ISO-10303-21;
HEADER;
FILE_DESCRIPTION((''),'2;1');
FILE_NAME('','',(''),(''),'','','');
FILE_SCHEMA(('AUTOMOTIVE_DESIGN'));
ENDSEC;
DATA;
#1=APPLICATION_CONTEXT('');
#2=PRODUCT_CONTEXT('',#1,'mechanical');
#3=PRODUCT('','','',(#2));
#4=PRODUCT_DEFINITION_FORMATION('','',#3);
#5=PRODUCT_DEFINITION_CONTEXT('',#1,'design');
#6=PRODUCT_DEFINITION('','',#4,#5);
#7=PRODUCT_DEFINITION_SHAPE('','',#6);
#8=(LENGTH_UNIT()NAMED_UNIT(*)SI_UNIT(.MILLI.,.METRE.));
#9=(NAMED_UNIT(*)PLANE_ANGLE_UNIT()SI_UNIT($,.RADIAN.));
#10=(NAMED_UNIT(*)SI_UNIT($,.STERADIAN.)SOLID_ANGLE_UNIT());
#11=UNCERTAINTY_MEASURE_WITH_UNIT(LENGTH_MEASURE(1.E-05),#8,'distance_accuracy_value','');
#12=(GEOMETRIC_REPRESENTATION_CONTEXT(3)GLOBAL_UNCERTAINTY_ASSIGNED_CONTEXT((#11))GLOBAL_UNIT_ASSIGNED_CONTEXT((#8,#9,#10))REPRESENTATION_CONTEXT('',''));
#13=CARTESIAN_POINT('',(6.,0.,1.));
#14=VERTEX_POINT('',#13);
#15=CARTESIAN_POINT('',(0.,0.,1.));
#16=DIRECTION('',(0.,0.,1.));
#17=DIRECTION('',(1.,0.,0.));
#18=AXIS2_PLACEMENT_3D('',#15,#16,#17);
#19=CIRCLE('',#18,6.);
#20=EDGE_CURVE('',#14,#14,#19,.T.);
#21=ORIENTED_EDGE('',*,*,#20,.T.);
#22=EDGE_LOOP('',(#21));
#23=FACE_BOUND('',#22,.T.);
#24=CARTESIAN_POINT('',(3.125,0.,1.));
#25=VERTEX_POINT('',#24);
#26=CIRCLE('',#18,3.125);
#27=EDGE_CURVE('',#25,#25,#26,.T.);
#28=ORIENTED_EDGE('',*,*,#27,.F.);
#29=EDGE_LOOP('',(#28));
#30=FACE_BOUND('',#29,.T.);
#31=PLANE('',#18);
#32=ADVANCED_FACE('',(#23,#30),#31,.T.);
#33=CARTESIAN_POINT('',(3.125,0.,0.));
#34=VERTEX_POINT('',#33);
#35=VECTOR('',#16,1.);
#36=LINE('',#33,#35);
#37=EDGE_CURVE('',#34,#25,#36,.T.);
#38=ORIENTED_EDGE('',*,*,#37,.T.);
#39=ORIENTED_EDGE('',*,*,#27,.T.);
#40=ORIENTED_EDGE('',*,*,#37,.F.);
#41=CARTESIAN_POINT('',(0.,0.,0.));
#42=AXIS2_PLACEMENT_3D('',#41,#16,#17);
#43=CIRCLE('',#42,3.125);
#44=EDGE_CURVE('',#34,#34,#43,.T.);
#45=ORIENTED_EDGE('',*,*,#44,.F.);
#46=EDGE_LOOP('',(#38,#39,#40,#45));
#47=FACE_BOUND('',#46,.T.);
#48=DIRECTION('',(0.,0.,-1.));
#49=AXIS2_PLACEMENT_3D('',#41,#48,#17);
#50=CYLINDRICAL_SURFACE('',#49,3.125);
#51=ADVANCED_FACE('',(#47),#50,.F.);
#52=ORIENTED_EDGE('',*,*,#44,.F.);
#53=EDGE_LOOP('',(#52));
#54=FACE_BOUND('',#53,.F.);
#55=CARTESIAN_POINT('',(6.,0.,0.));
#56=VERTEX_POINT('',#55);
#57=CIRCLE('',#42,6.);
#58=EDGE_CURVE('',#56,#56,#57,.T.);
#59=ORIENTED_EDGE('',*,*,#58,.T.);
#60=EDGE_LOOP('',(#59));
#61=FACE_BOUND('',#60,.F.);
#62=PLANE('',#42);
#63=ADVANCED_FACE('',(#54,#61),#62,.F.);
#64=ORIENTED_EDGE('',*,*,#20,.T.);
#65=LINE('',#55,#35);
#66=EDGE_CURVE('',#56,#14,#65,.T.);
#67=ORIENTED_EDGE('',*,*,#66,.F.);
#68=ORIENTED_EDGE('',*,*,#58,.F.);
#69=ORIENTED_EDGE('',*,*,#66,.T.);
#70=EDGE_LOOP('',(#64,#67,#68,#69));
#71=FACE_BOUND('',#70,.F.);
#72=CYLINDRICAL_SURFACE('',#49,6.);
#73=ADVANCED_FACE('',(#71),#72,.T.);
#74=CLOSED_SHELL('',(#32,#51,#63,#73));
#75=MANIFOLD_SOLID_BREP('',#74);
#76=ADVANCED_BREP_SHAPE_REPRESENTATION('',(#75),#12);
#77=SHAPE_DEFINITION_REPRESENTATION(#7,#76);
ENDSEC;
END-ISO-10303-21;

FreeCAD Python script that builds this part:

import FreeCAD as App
import Part
import Sketcher
from FreeCAD import Vector
Q = App.Units.Quantity

doc = App.newDocument("Part")
body = doc.addObject("PartDesign::Body", "Body")

sketch1 = doc.addObject("Sketcher::SketchObject", "Sketch")
body.addObject(sketch1)
sketch1.AttachmentSupport = (doc.XY_Plane, [""])
sketch1.MapMode = "FlatFace"
sketch1.addGeometry(Part.Circle(Vector(0, 0, 0), Vector(0, 0, 1), 6), False)
sketch1.addGeometry(Part.Circle(Vector(0, 0, 0), Vector(0, 0, 1), 3.1), False)
sketch1.addConstraint(Sketcher.Constraint("Coincident", 0, 3, -1, 1))
sketch1.addConstraint(Sketcher.Constraint("Coincident", 1, 3, -1, 1))
sketch1.addConstraint(Sketcher.Constraint("Diameter", 0, Q("12 mm")))
sketch1.addConstraint(Sketcher.Constraint("Diameter", 1, Q("6.25 mm")))
pad1 = doc.addObject("PartDesign::Pad", "Pad")
body.addObject(pad1)
pad1.Profile = sketch1
pad1.Length = 1

doc.recompute()
